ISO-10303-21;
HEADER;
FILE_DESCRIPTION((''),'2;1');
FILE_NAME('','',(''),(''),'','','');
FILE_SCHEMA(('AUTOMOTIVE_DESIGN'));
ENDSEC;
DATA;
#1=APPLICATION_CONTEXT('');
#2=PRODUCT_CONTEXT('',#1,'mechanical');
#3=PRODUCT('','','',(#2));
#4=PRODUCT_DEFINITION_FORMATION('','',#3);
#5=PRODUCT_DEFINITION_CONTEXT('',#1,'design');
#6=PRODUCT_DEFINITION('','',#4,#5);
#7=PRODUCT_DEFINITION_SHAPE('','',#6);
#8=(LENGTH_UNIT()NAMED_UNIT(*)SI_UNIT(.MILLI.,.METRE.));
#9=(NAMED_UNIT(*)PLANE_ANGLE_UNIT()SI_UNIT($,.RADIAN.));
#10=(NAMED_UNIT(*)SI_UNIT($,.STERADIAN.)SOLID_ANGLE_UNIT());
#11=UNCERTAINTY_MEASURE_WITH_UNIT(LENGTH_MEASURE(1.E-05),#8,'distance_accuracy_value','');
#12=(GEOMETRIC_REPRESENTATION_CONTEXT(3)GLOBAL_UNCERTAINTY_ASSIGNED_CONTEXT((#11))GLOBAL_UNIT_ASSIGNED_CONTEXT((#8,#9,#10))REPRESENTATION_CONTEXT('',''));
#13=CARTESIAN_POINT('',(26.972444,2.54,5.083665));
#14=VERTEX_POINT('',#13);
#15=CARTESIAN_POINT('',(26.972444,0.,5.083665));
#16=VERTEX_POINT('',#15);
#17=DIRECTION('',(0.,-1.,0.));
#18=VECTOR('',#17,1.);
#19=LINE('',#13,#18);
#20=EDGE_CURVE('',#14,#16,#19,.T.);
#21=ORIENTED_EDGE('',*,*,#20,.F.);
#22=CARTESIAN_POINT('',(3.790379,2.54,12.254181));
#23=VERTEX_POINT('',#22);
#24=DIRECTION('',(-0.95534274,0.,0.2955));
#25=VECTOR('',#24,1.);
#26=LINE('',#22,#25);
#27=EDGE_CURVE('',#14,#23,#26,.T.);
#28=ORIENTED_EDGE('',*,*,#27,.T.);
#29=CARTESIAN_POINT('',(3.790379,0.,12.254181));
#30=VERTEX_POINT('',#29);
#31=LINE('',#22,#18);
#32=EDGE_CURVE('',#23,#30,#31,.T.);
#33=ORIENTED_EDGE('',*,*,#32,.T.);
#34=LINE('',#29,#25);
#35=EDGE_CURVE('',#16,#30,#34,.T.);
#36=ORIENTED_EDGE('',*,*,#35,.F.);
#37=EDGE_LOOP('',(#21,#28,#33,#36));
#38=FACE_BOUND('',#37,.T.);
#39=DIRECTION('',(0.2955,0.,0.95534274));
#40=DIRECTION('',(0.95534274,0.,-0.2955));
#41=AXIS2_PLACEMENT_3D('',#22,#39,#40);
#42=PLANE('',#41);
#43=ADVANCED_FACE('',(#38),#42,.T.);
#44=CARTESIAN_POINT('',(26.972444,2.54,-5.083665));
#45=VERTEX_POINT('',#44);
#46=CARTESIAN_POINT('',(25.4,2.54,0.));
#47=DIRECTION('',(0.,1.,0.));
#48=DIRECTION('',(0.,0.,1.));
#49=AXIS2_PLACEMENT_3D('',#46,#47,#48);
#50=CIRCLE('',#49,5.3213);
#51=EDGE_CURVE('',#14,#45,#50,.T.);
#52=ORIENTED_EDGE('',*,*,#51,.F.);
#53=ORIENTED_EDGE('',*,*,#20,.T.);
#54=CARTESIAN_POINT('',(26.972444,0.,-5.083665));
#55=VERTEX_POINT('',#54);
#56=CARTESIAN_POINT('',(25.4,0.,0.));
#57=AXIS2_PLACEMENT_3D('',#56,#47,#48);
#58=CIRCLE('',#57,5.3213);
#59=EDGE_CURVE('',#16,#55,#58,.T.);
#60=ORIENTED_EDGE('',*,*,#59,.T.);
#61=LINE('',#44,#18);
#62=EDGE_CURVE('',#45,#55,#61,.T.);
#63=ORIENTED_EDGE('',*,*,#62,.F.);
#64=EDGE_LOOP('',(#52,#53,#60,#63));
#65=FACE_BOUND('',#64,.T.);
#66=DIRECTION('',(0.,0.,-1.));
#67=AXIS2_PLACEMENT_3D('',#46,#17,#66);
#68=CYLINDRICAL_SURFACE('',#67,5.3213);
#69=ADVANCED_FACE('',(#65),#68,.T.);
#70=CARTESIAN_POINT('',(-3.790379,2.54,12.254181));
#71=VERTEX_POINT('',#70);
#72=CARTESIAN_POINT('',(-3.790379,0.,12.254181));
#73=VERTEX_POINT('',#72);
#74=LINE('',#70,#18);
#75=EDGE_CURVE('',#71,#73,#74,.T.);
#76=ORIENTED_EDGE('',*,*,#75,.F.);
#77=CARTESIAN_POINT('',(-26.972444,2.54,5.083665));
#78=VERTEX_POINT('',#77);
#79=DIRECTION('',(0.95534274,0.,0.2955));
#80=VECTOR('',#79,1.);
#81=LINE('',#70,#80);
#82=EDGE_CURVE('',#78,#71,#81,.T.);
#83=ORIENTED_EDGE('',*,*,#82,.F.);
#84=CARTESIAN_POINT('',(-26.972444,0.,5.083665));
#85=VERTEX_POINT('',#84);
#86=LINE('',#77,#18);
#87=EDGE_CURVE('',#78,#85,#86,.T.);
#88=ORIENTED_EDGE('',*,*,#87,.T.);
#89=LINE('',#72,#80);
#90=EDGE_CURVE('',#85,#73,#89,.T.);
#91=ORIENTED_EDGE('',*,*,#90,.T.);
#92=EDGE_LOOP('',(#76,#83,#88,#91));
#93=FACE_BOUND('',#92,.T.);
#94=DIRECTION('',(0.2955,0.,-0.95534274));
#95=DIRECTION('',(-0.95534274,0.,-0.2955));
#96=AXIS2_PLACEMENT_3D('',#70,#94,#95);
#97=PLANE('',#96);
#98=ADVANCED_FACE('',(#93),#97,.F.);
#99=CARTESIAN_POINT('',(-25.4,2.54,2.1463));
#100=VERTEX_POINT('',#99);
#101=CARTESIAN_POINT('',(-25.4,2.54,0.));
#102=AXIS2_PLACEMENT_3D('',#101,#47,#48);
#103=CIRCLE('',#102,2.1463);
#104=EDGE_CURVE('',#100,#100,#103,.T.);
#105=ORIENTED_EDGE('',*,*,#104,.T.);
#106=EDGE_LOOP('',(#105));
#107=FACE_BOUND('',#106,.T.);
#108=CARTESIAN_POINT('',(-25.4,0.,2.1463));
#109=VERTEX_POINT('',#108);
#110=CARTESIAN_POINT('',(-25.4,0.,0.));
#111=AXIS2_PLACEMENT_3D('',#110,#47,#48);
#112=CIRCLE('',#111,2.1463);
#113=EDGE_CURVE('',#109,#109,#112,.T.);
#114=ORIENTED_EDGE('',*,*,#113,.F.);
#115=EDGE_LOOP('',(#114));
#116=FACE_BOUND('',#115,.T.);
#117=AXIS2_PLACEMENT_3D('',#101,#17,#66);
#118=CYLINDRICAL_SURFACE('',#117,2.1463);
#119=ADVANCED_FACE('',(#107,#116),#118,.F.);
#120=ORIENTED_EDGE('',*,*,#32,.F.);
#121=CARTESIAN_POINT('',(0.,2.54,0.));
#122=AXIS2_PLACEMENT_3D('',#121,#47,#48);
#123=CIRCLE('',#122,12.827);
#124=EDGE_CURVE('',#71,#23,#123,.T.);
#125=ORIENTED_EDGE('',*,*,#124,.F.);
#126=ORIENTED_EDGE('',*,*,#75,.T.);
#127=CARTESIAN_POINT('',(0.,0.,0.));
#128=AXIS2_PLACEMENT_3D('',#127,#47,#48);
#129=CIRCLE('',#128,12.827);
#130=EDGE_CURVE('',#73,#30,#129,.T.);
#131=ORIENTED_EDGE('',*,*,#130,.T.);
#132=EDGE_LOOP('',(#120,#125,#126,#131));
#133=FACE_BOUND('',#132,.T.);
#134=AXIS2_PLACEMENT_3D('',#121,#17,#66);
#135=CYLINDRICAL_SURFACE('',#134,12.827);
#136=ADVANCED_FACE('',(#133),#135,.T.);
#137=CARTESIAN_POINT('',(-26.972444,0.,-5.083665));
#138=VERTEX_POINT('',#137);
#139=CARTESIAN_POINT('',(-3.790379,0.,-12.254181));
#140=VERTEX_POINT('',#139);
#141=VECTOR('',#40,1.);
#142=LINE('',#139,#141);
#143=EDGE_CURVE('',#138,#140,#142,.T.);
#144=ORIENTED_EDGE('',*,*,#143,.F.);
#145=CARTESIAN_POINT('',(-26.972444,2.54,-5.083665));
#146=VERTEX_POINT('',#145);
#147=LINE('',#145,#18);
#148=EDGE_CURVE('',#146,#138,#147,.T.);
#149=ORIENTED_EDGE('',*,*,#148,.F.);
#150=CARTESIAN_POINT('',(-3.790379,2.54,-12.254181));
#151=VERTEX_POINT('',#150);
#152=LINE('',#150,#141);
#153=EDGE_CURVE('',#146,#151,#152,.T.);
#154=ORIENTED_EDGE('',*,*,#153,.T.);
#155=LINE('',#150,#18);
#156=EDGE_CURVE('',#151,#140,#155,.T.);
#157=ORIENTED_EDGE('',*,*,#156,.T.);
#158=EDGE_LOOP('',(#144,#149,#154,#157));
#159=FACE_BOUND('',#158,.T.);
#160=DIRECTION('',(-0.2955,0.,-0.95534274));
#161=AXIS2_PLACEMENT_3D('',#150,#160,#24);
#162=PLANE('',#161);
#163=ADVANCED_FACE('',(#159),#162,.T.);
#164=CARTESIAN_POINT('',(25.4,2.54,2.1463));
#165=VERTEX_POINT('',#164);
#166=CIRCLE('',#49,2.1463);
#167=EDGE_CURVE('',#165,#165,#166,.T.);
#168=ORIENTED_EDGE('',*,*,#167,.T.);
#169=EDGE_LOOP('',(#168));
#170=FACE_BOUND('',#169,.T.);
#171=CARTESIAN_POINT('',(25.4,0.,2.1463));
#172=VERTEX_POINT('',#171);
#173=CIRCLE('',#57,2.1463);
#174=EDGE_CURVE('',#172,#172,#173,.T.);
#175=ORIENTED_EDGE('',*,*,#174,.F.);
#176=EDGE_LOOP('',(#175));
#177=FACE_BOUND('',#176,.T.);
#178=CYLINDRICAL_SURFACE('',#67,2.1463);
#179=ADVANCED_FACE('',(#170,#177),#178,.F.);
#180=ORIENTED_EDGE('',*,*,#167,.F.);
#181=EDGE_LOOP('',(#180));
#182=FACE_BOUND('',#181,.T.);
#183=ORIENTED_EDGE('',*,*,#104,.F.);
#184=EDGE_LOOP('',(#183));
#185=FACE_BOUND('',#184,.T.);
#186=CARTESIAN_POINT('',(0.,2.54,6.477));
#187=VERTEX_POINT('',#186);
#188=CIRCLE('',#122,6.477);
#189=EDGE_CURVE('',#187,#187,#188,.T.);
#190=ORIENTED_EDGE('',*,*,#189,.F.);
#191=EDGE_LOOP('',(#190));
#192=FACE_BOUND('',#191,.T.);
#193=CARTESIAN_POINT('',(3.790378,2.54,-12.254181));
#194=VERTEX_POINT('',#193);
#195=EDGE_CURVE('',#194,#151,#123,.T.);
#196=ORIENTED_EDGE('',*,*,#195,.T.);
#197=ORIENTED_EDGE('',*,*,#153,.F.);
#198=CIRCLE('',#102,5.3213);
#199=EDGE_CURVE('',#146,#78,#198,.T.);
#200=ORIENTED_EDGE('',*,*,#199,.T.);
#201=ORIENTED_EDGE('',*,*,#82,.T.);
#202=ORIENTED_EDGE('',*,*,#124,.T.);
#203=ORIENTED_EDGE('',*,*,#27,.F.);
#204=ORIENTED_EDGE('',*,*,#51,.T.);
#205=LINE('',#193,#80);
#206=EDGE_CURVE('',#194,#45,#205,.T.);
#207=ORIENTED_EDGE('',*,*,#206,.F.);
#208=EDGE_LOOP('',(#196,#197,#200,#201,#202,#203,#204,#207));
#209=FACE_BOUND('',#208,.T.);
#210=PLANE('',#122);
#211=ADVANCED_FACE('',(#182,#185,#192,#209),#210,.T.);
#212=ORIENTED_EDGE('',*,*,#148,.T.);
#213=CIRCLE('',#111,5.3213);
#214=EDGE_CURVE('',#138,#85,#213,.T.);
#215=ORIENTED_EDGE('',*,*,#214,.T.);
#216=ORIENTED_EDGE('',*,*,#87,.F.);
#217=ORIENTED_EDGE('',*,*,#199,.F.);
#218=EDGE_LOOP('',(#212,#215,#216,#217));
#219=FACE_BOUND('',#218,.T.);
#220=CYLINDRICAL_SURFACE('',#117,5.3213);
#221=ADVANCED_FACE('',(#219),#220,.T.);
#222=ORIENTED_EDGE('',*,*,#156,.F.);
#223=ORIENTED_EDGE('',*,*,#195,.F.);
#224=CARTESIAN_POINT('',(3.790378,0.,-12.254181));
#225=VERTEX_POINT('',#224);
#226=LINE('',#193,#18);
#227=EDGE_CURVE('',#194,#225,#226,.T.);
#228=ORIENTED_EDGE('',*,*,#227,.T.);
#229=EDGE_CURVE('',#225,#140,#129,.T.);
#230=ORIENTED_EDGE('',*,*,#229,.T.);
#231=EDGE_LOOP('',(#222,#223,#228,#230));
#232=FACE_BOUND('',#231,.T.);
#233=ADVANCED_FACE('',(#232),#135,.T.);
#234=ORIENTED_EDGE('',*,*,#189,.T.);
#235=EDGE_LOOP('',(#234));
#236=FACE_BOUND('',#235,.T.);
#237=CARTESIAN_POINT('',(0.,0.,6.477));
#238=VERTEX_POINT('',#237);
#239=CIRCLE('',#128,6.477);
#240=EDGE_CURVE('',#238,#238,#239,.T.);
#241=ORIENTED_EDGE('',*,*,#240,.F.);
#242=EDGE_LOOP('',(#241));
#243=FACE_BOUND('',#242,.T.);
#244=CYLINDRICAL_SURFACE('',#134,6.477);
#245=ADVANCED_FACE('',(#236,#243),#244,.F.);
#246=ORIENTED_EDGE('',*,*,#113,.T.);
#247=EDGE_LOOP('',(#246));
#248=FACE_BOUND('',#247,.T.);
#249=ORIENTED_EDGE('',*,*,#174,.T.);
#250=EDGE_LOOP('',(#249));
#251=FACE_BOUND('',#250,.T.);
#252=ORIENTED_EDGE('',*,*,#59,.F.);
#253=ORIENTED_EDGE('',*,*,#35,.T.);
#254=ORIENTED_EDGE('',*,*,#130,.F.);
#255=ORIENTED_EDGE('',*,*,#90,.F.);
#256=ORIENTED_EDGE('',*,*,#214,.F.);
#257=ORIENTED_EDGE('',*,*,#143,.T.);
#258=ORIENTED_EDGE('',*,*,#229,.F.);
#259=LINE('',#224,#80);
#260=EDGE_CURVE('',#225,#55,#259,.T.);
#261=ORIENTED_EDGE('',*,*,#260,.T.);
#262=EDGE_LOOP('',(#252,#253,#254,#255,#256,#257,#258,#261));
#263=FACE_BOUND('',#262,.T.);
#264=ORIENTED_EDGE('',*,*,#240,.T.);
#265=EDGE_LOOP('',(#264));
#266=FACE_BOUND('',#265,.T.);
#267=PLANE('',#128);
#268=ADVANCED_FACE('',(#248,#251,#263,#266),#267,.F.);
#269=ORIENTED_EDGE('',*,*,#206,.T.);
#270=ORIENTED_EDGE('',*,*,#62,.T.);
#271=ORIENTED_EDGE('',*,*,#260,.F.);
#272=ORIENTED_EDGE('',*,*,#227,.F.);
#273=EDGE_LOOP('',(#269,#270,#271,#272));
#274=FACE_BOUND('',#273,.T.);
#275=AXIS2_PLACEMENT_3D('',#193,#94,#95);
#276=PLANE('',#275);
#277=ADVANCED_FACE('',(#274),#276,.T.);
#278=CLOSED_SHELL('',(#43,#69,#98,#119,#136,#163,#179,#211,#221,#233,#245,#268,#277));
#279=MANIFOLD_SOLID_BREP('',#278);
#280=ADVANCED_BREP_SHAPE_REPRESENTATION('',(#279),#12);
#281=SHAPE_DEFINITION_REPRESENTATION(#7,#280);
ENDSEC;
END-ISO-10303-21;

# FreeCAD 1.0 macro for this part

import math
import FreeCAD as App
import Part
import Sketcher
Q = App.Units.Quantity

doc = App.newDocument("Part")
body = doc.addObject("PartDesign::Body", "Body")

# Sketch on XZ plane
sketch1 = body.newObject("Sketcher::SketchObject", "Sketch")
sketch1.AttachmentSupport = (doc.getObject("XZ_Plane"), [""])
sketch1.MapMode = "FlatFace"
sketch1.addGeometry(Part.LineSegment(App.Vector(-3.8, -12.3, 0), App.Vector(-27, -5.1, 0)), False)
sketch1.addGeometry(Part.ArcOfCircle(Part.Circle(App.Vector(-25.4, 0, 0), App.Vector(0, 0, 1), 5.3), math.radians(107), math.radians(253)), False)
sketch1.addGeometry(Part.LineSegment(App.Vector(-27, 5.1, 0), App.Vector(-3.8, 12.3, 0)), False)
sketch1.addGeometry(Part.ArcOfCircle(Part.Circle(App.Vector(0, 0, 0), App.Vector(0, 0, 1), 12.8), math.radians(73), math.radians(107)), False)
sketch1.addGeometry(Part.LineSegment(App.Vector(3.8, 12.3, 0), App.Vector(27, 5.1, 0)), False)
sketch1.addGeometry(Part.ArcOfCircle(Part.Circle(App.Vector(25.4, 0, 0), App.Vector(0, 0, 1), 5.3), math.radians(-73), math.radians(73)), False)
sketch1.addGeometry(Part.LineSegment(App.Vector(27, -5.1, 0), App.Vector(3.8, -12.3, 0)), False)
sketch1.addGeometry(Part.ArcOfCircle(Part.Circle(App.Vector(0, 0, 0), App.Vector(0, 0, 1), 12.8), math.radians(-107), math.radians(-73)), False)
sketch1.addGeometry(Part.Circle(App.Vector(-25.4, 0, 0), App.Vector(0, 0, 1), 2.1), False)
sketch1.addGeometry(Part.Circle(App.Vector(0, 0, 0), App.Vector(0, 0, 1), 6.5), False)
sketch1.addGeometry(Part.Circle(App.Vector(25.4, 0, 0), App.Vector(0, 0, 1), 2.1), False)
sketch1.addConstraint(Sketcher.Constraint("Tangent", 0, 2, 1, 2))
sketch1.addConstraint(Sketcher.Constraint("Tangent", 1, 1, 2, 1))
sketch1.addConstraint(Sketcher.Constraint("Tangent", 2, 2, 3, 2))
sketch1.addConstraint(Sketcher.Constraint("Tangent", 3, 1, 4, 1))
sketch1.addConstraint(Sketcher.Constraint("Tangent", 4, 2, 5, 2))
sketch1.addConstraint(Sketcher.Constraint("Tangent", 5, 1, 6, 1))
sketch1.addConstraint(Sketcher.Constraint("Tangent", 6, 2, 7, 2))
sketch1.addConstraint(Sketcher.Constraint("Tangent", 7, 1, 0, 1))
sketch1.addConstraint(Sketcher.Constraint("Coincident", 3, 3, -1, 1))
sketch1.addConstraint(Sketcher.Constraint("Coincident", 7, 3, -1, 1))
sketch1.addConstraint(Sketcher.Constraint("Coincident", 9, 3, -1, 1))
sketch1.addConstraint(Sketcher.Constraint("Coincident", 8, 3, 1, 3))
sketch1.addConstraint(Sketcher.Constraint("Coincident", 10, 3, 5, 3))
sketch1.addConstraint(Sketcher.Constraint("Equal", 1, 5))
sketch1.addConstraint(Sketcher.Constraint("Equal", 3, 7))
sketch1.addConstraint(Sketcher.Constraint("Equal", 8, 10))
sketch1.addConstraint(Sketcher.Constraint("Symmetric", 1, 3, 5, 3, -1, 1))
sketch1.addConstraint(Sketcher.Constraint("PointOnObject", 1, 3, -1))
sketch1.addConstraint(Sketcher.Constraint("Diameter", 9, Q("0.51 in")))
sketch1.addConstraint(Sketcher.Constraint("Diameter", 8, Q("0.169 in")))
sketch1.addConstraint(Sketcher.Constraint("DistanceX", 1, 3, -1, 1, Q("1 in")))
sketch1.addConstraint(Sketcher.Constraint("Radius", 3, Q("0.505 in")))
sketch1.addConstraint(Sketcher.Constraint("Radius", 1, Q("0.2095 in")))
pad1 = body.newObject("PartDesign::Pad", "Pad")
pad1.Profile = sketch1
pad1.Length = Q("0.1 in")
pad1.Reversed = True

doc.recompute()
